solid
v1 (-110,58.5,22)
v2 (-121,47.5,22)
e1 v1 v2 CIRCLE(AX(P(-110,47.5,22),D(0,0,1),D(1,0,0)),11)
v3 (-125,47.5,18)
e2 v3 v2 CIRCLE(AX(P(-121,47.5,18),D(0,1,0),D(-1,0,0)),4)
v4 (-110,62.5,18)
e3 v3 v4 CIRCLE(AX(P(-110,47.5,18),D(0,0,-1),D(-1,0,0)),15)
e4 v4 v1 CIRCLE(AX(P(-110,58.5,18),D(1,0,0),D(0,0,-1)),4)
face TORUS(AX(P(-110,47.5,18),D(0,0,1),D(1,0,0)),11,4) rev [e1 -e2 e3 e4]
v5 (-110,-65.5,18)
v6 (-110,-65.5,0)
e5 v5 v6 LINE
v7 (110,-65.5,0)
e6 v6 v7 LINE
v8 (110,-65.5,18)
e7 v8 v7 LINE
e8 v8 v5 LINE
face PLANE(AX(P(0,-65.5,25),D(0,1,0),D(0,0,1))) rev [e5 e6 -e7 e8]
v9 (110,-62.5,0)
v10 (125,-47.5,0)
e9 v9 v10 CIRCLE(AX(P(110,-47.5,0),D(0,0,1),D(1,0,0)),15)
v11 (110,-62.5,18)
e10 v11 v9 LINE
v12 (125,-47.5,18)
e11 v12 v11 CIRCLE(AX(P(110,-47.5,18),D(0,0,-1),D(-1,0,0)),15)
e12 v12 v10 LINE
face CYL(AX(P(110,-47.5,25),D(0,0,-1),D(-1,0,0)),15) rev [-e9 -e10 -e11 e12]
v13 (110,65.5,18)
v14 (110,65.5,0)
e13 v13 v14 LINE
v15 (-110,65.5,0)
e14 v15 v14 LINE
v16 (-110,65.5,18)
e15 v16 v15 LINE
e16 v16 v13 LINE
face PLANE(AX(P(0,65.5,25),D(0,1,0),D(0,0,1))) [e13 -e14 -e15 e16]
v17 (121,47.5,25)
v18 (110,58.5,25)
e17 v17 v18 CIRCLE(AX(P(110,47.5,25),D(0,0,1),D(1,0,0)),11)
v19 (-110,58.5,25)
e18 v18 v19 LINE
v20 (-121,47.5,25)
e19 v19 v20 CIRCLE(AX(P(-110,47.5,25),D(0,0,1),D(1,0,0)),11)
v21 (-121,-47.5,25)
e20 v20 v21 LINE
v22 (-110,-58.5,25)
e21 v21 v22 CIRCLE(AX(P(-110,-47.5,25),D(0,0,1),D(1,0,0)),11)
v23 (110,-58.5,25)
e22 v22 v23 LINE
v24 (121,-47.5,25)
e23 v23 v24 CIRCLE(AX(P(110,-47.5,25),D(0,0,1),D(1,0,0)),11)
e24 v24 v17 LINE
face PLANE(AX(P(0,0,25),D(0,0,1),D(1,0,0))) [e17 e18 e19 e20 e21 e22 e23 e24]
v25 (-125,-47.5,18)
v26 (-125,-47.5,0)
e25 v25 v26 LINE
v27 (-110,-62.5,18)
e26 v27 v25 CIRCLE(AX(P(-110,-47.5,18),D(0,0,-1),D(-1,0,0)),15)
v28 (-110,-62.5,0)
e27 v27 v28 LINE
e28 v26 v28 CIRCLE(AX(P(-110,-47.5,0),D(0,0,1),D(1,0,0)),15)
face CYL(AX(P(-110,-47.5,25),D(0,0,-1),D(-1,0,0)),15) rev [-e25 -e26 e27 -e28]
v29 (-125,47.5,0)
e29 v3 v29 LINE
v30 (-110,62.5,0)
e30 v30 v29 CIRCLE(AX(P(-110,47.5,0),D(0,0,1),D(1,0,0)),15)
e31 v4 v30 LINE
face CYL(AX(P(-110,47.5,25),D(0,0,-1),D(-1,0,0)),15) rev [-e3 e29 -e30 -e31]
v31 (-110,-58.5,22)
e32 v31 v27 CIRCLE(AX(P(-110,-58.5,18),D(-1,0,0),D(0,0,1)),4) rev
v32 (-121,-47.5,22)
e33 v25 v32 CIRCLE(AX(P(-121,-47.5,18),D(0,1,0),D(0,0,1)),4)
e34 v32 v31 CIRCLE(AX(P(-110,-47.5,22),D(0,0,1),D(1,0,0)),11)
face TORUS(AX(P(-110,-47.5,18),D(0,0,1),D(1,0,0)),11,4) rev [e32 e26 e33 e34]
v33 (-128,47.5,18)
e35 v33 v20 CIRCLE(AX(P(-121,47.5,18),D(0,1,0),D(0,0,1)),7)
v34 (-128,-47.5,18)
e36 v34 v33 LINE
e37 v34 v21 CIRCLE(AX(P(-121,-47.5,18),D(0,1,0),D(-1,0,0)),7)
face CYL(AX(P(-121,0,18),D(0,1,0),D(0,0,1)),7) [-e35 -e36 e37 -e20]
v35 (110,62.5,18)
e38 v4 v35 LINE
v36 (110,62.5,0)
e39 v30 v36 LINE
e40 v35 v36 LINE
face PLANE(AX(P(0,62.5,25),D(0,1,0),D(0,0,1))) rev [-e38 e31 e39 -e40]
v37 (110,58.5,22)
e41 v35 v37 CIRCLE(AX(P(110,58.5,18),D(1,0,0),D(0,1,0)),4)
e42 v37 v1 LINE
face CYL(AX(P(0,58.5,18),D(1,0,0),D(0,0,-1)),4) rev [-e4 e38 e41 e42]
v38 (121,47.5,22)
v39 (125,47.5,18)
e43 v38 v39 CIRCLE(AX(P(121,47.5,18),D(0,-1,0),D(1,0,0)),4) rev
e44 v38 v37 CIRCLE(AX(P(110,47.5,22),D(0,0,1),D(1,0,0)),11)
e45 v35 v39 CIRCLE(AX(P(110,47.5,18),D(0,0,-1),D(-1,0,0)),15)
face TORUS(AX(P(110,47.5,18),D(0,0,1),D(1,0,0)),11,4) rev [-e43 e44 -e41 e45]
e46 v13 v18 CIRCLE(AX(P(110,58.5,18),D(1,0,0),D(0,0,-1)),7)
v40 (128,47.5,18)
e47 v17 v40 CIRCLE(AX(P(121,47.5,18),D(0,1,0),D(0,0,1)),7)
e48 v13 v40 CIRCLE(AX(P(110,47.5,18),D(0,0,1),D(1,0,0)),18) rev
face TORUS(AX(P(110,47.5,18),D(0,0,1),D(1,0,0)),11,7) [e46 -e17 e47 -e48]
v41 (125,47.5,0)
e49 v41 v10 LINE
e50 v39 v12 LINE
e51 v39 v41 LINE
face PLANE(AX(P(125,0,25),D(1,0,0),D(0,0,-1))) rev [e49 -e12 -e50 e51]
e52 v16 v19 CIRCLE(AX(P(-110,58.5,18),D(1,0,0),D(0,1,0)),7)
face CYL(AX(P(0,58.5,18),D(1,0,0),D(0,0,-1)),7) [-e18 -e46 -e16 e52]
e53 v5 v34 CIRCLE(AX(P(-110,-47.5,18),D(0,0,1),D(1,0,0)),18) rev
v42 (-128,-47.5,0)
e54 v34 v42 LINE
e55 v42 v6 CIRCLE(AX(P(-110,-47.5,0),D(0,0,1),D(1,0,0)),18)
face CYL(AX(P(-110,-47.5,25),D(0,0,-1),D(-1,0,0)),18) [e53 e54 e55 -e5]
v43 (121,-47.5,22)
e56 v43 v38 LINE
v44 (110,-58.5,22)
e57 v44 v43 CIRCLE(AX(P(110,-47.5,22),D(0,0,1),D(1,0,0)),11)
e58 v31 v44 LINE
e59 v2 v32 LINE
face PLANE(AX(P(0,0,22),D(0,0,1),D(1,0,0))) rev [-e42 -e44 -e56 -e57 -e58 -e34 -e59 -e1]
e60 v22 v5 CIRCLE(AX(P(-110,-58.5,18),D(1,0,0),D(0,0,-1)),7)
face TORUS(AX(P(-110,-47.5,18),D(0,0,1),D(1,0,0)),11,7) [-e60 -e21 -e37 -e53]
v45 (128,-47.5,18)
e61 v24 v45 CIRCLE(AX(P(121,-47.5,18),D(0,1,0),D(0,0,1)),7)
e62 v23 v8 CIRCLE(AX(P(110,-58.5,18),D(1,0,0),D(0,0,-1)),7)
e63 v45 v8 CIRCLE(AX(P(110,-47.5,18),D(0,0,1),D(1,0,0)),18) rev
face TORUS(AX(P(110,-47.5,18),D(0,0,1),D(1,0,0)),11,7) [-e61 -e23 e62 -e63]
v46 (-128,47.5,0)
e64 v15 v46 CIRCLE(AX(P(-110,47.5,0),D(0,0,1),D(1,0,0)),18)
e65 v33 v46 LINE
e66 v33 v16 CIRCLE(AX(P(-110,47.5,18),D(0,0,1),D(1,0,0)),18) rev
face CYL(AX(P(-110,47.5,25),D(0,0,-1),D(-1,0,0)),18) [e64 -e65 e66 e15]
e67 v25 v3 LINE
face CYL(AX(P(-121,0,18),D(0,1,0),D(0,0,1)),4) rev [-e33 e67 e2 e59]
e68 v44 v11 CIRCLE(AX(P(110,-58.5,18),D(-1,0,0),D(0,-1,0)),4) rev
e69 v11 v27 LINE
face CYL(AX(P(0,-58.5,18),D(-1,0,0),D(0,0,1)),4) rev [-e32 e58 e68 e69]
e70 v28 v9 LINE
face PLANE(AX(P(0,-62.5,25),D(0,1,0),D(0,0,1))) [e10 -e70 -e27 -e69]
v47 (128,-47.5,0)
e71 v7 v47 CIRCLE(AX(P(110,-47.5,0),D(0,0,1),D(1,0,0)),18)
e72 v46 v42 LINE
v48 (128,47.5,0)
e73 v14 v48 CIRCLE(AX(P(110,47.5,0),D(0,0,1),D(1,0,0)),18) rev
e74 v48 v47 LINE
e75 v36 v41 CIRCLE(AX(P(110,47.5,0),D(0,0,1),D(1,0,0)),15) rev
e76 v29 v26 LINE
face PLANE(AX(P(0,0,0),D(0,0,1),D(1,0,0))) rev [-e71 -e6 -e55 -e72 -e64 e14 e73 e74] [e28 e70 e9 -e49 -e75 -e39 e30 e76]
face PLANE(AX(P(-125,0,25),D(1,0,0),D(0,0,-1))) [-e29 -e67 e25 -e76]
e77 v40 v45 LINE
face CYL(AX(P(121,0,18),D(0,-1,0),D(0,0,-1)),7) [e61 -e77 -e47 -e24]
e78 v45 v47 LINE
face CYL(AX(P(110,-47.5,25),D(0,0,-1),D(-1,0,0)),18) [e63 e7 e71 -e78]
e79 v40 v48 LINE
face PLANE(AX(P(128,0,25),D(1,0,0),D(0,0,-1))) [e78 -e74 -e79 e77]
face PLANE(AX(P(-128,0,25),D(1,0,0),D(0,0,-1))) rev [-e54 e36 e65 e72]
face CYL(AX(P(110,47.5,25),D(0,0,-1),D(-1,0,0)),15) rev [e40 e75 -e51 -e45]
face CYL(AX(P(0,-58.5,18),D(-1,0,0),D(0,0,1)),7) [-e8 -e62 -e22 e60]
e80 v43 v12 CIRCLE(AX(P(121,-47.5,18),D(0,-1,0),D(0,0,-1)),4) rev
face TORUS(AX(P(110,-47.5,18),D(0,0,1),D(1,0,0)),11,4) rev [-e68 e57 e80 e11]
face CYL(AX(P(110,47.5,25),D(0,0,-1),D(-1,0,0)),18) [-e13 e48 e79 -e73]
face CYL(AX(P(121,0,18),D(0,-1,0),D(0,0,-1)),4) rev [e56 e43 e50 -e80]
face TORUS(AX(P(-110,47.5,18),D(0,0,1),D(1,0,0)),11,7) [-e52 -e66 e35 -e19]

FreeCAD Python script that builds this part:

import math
import FreeCAD as App
import Part
import Sketcher

V = App.Vector


def edges_at(feature, points):
    """Names of the edges that pass closest to the given points."""
    edges = feature.Shape.Edges
    near = lambda p: min(range(len(edges)), key=lambda i: edges[i].distToShape(Part.Vertex(*p))[0])
    return sorted({f"Edge{near(p) + 1}" for p in points})


def faces_at(feature, points):
    """Names of the faces that lie closest to the given points."""
    faces = feature.Shape.Faces
    near = lambda p: min(range(len(faces)), key=lambda i: faces[i].distToShape(Part.Vertex(*p))[0])
    return sorted({f"Face{near(p) + 1}" for p in points})

doc = App.newDocument("Part")
body = doc.addObject("PartDesign::Body", "Body")

sketch1 = body.newObject("Sketcher::SketchObject", "Sketch")
sketch1.AttachmentSupport = (doc.getObject("XY_Plane"), [""])
sketch1.MapMode = "FlatFace"
sketch1.addGeometry(Part.LineSegment(V(110, 66, 0), V(-110, 66, 0)), False)
sketch1.addGeometry(Part.ArcOfCircle(Part.Circle(V(-110, 47, 0), V(0, 0, 1), 18), math.radians(90), math.radians(180)), False)
sketch1.addGeometry(Part.LineSegment(V(-128, 48, 0), V(-128, -48, 0)), False)
sketch1.addGeometry(Part.ArcOfCircle(Part.Circle(V(-110, -47, 0), V(0, 0, 1), 18), math.radians(-180), math.radians(-90)), False)
sketch1.addGeometry(Part.LineSegment(V(-110, -66, 0), V(110, -66, 0)), False)
sketch1.addGeometry(Part.ArcOfCircle(Part.Circle(V(110, -47, 0), V(0, 0, 1), 18), math.radians(-90), math.radians(0)), False)
sketch1.addGeometry(Part.LineSegment(V(128, -48, 0), V(128, 48, 0)), False)
sketch1.addGeometry(Part.ArcOfCircle(Part.Circle(V(110, 47, 0), V(0, 0, 1), 18), math.radians(0), math.radians(90)), False)
sketch1.addConstraint(Sketcher.Constraint("Tangent", 0, 2, 1, 1))
sketch1.addConstraint(Sketcher.Constraint("Tangent", 1, 2, 2, 1))
sketch1.addConstraint(Sketcher.Constraint("Tangent", 2, 2, 3, 1))
sketch1.addConstraint(Sketcher.Constraint("Tangent", 3, 2, 4, 1))
sketch1.addConstraint(Sketcher.Constraint("Tangent", 4, 2, 5, 1))
sketch1.addConstraint(Sketcher.Constraint("Tangent", 5, 2, 6, 1))
sketch1.addConstraint(Sketcher.Constraint("Tangent", 6, 2, 7, 1))
sketch1.addConstraint(Sketcher.Constraint("Tangent", 7, 2, 0, 1))
sketch1.addConstraint(Sketcher.Constraint("Horizontal", 0))
sketch1.addConstraint(Sketcher.Constraint("Vertical", 2))
sketch1.addConstraint(Sketcher.Constraint("Horizontal", 4))
sketch1.addConstraint(Sketcher.Constraint("Vertical", 6))
sketch1.addConstraint(Sketcher.Constraint("Equal", 1, 3))
sketch1.addConstraint(Sketcher.Constraint("Equal", 3, 5))
sketch1.addConstraint(Sketcher.Constraint("Equal", 5, 7))
sketch1.addConstraint(Sketcher.Constraint("Symmetric", 1, 3, 5, 3, -1, 1))
sketch1.addConstraint(Sketcher.Constraint("Radius", 1, 18.0))
sketch1.addConstraint(Sketcher.Constraint("DistanceX", 0, 2, 0, 1, 220.0))
sketch1.addConstraint(Sketcher.Constraint("DistanceY", 2, 2, 2, 1, 95.0))
pad1 = body.newObject("PartDesign::Pad", "Pad")
pad1.Profile = sketch1
pad1.Length = 25
doc.recompute()

fillet = body.newObject("PartDesign::Fillet", "Fillet")
fillet.Base = (pad1, edges_at(pad1, [
    (-122.728, 60.228, 25),
    (-128, 0, 25),
    (-122.728, -60.228, 25),
    (0, -65.5, 25),
    (122.728, -60.228, 25),
    (128, 0, 25),
    (122.728, 60.228, 25),
    (0, 65.5, 25),
]))
fillet.Radius = 7
doc.recompute()

thickness = body.newObject("PartDesign::Thickness", "Thickness")
thickness.Base = (fillet, faces_at(fillet, [(0, 0, 0)]))
thickness.Value = 3
thickness.Reversed = True
thickness.Join = "Intersection"

doc.recompute()
